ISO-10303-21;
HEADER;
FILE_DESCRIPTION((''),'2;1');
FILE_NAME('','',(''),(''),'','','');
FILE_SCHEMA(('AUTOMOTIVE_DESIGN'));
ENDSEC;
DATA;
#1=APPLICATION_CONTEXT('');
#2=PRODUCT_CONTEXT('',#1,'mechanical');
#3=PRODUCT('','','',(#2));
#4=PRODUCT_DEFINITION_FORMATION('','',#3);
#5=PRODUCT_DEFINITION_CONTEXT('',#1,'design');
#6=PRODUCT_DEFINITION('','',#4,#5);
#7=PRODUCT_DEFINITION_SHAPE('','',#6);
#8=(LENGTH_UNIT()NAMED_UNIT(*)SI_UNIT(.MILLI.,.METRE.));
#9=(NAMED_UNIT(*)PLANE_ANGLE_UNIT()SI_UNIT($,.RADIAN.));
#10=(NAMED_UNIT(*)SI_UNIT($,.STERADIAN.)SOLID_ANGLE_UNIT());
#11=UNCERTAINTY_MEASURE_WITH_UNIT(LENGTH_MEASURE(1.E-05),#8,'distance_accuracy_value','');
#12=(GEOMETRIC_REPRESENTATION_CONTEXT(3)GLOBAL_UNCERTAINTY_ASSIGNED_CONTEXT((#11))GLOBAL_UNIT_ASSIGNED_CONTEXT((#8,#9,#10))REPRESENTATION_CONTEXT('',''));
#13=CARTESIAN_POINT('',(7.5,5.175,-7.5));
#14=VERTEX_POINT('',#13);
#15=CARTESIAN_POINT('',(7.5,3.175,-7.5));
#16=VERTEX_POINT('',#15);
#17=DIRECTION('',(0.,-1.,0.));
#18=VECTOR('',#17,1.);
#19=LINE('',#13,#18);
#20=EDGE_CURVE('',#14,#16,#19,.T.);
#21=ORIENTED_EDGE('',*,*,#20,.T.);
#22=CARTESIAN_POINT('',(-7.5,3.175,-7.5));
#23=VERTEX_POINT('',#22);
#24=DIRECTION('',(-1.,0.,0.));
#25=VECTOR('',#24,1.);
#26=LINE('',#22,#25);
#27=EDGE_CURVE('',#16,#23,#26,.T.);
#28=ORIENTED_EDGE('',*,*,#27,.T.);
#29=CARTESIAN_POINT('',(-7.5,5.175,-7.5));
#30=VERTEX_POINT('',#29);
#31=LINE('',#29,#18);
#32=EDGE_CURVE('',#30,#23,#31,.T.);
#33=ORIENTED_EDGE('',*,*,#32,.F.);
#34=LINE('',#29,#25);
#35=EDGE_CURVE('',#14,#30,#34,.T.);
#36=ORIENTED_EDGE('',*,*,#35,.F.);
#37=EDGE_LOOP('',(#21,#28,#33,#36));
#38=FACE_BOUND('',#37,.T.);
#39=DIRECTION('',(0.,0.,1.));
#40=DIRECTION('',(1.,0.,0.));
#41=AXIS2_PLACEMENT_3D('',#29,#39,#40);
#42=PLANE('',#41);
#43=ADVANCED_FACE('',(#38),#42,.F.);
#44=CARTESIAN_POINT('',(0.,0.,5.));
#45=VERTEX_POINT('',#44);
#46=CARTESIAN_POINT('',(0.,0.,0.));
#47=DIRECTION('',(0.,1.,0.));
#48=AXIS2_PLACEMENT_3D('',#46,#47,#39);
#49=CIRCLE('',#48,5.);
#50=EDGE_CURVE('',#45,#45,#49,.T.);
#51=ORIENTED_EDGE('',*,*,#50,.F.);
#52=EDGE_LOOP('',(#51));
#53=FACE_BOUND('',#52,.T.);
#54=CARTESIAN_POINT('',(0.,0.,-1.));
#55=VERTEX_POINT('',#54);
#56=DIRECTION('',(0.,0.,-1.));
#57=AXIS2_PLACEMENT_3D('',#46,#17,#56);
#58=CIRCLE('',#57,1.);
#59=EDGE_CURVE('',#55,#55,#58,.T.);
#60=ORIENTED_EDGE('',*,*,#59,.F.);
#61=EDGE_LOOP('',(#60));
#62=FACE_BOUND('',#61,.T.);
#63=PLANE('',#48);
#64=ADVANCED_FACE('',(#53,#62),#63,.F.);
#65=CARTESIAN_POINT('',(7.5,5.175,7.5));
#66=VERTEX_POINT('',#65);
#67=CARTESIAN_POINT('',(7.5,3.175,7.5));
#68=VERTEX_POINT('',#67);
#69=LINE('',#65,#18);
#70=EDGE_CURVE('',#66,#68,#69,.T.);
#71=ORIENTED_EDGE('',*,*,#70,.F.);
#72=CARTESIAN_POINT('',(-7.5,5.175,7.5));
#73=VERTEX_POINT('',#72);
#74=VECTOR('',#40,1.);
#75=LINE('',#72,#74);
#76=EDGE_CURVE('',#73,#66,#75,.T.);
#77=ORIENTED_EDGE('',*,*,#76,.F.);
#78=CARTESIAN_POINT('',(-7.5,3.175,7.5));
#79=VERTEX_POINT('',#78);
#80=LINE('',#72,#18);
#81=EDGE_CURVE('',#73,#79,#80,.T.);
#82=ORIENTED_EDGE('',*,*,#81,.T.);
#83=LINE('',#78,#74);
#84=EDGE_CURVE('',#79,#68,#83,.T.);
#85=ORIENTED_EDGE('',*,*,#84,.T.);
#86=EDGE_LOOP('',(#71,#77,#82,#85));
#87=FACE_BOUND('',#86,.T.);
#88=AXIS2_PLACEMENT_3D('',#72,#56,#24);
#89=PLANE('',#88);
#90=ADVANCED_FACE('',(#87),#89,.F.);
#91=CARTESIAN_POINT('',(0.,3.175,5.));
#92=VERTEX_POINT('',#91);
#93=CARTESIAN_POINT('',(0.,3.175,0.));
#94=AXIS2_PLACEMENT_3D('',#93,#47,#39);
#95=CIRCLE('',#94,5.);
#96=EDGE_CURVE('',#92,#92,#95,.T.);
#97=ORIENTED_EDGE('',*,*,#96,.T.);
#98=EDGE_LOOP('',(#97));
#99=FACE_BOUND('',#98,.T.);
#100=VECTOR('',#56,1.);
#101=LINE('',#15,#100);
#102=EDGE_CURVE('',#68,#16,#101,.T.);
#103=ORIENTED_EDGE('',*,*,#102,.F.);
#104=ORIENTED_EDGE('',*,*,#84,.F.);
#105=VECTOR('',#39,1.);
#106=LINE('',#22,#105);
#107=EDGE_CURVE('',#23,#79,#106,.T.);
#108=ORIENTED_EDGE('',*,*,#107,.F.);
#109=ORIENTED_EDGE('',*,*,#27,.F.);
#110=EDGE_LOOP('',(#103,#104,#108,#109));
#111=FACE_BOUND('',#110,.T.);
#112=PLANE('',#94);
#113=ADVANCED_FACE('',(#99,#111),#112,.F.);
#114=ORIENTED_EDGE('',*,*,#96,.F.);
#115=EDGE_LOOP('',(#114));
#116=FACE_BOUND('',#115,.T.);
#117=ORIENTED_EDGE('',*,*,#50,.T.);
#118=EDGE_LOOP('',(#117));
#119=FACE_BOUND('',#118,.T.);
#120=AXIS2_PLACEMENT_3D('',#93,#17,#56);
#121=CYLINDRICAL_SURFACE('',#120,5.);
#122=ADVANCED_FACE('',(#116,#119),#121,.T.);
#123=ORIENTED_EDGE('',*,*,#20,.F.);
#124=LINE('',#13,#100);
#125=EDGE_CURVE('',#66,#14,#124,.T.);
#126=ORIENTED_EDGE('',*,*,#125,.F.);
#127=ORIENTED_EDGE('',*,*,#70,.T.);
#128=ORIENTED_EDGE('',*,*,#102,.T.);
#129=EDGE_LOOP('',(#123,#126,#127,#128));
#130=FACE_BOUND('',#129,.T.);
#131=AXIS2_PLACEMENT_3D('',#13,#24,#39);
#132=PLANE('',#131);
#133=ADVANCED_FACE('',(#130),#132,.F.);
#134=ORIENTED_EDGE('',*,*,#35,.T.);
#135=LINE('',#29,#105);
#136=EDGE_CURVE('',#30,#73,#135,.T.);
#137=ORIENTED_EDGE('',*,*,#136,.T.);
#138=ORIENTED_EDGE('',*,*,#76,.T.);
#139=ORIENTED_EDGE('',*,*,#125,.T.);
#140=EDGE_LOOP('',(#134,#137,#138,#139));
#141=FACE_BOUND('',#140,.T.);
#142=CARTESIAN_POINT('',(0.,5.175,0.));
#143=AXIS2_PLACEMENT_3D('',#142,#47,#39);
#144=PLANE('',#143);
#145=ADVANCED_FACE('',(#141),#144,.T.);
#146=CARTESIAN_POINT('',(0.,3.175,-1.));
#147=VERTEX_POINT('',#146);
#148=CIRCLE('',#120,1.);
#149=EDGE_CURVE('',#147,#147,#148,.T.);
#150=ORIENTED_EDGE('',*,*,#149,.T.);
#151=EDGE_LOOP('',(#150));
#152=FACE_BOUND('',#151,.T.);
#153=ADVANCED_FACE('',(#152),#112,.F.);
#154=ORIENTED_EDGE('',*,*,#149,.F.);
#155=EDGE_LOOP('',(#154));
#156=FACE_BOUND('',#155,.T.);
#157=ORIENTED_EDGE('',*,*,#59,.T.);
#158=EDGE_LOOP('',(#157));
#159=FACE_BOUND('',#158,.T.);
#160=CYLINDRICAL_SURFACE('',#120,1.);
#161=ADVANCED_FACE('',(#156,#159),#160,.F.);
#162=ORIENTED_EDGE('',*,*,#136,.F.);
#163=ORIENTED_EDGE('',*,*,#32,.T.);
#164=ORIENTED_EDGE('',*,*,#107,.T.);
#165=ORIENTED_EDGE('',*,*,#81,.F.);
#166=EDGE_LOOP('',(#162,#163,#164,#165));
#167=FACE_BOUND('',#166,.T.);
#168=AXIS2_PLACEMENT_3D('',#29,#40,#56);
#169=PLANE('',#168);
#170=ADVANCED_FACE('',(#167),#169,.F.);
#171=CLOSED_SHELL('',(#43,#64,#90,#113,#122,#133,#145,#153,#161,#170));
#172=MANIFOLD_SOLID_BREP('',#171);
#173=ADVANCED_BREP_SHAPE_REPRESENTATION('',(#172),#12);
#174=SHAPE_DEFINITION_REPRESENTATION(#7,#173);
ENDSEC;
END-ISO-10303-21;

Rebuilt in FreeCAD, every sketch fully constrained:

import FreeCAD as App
import Part
import Sketcher
Q = App.Units.Quantity

doc = App.newDocument("Part")
body = doc.addObject("PartDesign::Body", "Body")

# Sketch on XZ plane
sketch1 = body.newObject("Sketcher::SketchObject", "Sketch")
sketch1.AttachmentSupport = (doc.getObject("XZ_Plane"), [""])
sketch1.MapMode = "FlatFace"
sketch1.addGeometry(Part.Circle(App.Vector(0, 0, 0), App.Vector(0, 0, 1), 5), False)
sketch1.addConstraint([
    Sketcher.Constraint("Coincident", 0, 3, -1, 1),
    Sketcher.Constraint("Diameter", 0, Q("10 mm")),
])
pad1 = body.newObject("PartDesign::Pad", "Pad")
pad1.Profile = sketch1
pad1.Length = 3.175
pad1.Reversed = True

# Sketch on XZ plane
sketch2 = body.newObject("Sketcher::SketchObject", "Sketch001")
sketch2.AttachmentSupport = (doc.getObject("XZ_Plane"), [""])
sketch2.MapMode = "FlatFace"
sketch2.addGeometry(Part.Circle(App.Vector(0, 0, 0), App.Vector(0, 0, 1), 1), False)
sketch2.addConstraint([
    Sketcher.Constraint("Coincident", 0, 3, -1, 1),
    Sketcher.Constraint("Diameter", 0, Q("2 mm")),
])
pocket1 = body.newObject("PartDesign::Pocket", "Pocket")
pocket1.Profile = sketch2
pocket1.Length = 3.175

# Sketch on XZ plane
sketch3 = body.newObject("Sketcher::SketchObject", "Sketch002")
sketch3.AttachmentSupport = (doc.getObject("XZ_Plane"), [""])
sketch3.MapMode = "FlatFace"
sketch3.AttachmentOffset = App.Placement(App.Vector(0, 0, -3.175), App.Rotation())
sketch3.addGeometry([
    Part.LineSegment(App.Vector(-8, -8, 0), App.Vector(-8, 8, 0)),
    Part.LineSegment(App.Vector(-8, 8, 0), App.Vector(8, 8, 0)),
    Part.LineSegment(App.Vector(8, 8, 0), App.Vector(8, -8, 0)),
    Part.LineSegment(App.Vector(8, -8, 0), App.Vector(-8, -8, 0)),
], False)
sketch3.addConstraint([
    Sketcher.Constraint("Coincident", 0, 2, 1, 1),
    Sketcher.Constraint("Coincident", 1, 2, 2, 1),
    Sketcher.Constraint("Coincident", 2, 2, 3, 1),
    Sketcher.Constraint("Coincident", 3, 2, 0, 1),
    Sketcher.Constraint("Vertical", 0),
    Sketcher.Constraint("Horizontal", 1),
    Sketcher.Constraint("Vertical", 2),
    Sketcher.Constraint("Horizontal", 3),
    Sketcher.Constraint("Symmetric", 0, 2, 2, 2, -1, 1),
    Sketcher.Constraint("Equal", 3, 0),
    Sketcher.Constraint("DistanceX", 1, 1, 1, 2, Q("15 mm")),
])
pad2 = body.newObject("PartDesign::Pad", "Pad001")
pad2.Profile = sketch3
pad2.Length = 2
pad2.Reversed = True

doc.recompute()
